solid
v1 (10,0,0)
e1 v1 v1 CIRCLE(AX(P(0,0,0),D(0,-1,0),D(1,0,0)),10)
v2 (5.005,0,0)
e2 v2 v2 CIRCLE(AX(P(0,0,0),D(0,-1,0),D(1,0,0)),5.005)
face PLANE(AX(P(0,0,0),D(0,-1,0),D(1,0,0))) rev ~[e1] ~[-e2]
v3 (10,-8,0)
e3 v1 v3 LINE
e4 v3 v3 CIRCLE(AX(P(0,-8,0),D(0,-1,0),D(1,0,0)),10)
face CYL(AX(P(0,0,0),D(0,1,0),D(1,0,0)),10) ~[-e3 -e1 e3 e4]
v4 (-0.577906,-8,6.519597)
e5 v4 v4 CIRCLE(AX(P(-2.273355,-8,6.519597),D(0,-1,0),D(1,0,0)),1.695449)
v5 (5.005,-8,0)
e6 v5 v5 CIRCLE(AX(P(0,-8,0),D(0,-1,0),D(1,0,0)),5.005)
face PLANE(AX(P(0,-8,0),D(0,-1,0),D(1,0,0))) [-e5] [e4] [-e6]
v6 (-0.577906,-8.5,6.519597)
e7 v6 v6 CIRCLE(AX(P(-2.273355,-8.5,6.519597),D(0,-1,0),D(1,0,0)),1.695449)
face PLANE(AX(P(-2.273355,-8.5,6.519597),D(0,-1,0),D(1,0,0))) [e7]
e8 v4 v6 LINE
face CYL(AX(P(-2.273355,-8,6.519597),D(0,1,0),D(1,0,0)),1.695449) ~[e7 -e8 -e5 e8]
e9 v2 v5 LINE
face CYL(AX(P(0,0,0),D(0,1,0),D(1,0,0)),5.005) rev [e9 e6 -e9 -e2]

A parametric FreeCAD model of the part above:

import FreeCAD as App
import Part
import Sketcher

doc = App.newDocument("Part")
params = doc.addObject("Spreadsheet::Sheet", "Params")
for row, (alias, value) in enumerate([
    ("sketch1_diameter", "20 mm"),
    ("sketch1_diameter2", "10.01 mm"),
    ("pad1_length", "8 mm"),
    ("pad2_length", "0.5 mm"),
], start=1):
    params.set(f"A{row}", alias)
    params.set(f"B{row}", "=" + value)
    params.setAlias(f"B{row}", alias)

body = doc.addObject("PartDesign::Body", "Body")

sketch1 = body.newObject("Sketcher::SketchObject", "Sketch")
sketch1.AttachmentSupport = (doc.getObject("XZ_Plane"), [""])
sketch1.MapMode = "FlatFace"
sketch1.addGeometry(Part.Circle(App.Vector(0, 0, 0), App.Vector(0, 0, 1), 10), False)
sketch1.addGeometry(Part.Circle(App.Vector(0, 0, 0), App.Vector(0, 0, 1), 5.005), False)
sketch1.addConstraint(Sketcher.Constraint("Coincident", 0, 3, -1, 1))
sketch1.addConstraint(Sketcher.Constraint("Coincident", 1, 3, -1, 1))
sketch1.addConstraint(Sketcher.Constraint("Diameter", 0, 20.0))
sketch1.addConstraint(Sketcher.Constraint("Diameter", 1, 10.01))
sketch1.setExpression("Constraints[2]", "Params.sketch1_diameter")
sketch1.setExpression("Constraints[3]", "Params.sketch1_diameter2")
pad1 = body.newObject("PartDesign::Pad", "Pad")
pad1.Profile = sketch1
pad1.setExpression("Length", "Params.pad1_length")

sketch2 = body.newObject("Sketcher::SketchObject", "Sketch001")
sketch2.AttachmentSupport = (doc.getObject("XZ_Plane"), [""])
sketch2.MapMode = "FlatFace"
sketch2.AttachmentOffset = App.Placement(App.Vector(0, 0, 8), App.Rotation())
sketch2.addGeometry(Part.Circle(App.Vector(-2.273355, 6.519597, 0), App.Vector(0, 0, 1), 1.695449), False)
sketch2.addConstraint(Sketcher.Constraint("Diameter", 0, 3.390898))
sketch2.addConstraint(Sketcher.Constraint("DistanceX", 0, 3, -1, 1, 2.273355))
sketch2.addConstraint(Sketcher.Constraint("DistanceY", -1, 1, 0, 3, 6.519597))
pad2 = body.newObject("PartDesign::Pad", "Pad001")
pad2.Profile = sketch2
pad2.setExpression("Length", "Params.pad2_length")

doc.recompute()
